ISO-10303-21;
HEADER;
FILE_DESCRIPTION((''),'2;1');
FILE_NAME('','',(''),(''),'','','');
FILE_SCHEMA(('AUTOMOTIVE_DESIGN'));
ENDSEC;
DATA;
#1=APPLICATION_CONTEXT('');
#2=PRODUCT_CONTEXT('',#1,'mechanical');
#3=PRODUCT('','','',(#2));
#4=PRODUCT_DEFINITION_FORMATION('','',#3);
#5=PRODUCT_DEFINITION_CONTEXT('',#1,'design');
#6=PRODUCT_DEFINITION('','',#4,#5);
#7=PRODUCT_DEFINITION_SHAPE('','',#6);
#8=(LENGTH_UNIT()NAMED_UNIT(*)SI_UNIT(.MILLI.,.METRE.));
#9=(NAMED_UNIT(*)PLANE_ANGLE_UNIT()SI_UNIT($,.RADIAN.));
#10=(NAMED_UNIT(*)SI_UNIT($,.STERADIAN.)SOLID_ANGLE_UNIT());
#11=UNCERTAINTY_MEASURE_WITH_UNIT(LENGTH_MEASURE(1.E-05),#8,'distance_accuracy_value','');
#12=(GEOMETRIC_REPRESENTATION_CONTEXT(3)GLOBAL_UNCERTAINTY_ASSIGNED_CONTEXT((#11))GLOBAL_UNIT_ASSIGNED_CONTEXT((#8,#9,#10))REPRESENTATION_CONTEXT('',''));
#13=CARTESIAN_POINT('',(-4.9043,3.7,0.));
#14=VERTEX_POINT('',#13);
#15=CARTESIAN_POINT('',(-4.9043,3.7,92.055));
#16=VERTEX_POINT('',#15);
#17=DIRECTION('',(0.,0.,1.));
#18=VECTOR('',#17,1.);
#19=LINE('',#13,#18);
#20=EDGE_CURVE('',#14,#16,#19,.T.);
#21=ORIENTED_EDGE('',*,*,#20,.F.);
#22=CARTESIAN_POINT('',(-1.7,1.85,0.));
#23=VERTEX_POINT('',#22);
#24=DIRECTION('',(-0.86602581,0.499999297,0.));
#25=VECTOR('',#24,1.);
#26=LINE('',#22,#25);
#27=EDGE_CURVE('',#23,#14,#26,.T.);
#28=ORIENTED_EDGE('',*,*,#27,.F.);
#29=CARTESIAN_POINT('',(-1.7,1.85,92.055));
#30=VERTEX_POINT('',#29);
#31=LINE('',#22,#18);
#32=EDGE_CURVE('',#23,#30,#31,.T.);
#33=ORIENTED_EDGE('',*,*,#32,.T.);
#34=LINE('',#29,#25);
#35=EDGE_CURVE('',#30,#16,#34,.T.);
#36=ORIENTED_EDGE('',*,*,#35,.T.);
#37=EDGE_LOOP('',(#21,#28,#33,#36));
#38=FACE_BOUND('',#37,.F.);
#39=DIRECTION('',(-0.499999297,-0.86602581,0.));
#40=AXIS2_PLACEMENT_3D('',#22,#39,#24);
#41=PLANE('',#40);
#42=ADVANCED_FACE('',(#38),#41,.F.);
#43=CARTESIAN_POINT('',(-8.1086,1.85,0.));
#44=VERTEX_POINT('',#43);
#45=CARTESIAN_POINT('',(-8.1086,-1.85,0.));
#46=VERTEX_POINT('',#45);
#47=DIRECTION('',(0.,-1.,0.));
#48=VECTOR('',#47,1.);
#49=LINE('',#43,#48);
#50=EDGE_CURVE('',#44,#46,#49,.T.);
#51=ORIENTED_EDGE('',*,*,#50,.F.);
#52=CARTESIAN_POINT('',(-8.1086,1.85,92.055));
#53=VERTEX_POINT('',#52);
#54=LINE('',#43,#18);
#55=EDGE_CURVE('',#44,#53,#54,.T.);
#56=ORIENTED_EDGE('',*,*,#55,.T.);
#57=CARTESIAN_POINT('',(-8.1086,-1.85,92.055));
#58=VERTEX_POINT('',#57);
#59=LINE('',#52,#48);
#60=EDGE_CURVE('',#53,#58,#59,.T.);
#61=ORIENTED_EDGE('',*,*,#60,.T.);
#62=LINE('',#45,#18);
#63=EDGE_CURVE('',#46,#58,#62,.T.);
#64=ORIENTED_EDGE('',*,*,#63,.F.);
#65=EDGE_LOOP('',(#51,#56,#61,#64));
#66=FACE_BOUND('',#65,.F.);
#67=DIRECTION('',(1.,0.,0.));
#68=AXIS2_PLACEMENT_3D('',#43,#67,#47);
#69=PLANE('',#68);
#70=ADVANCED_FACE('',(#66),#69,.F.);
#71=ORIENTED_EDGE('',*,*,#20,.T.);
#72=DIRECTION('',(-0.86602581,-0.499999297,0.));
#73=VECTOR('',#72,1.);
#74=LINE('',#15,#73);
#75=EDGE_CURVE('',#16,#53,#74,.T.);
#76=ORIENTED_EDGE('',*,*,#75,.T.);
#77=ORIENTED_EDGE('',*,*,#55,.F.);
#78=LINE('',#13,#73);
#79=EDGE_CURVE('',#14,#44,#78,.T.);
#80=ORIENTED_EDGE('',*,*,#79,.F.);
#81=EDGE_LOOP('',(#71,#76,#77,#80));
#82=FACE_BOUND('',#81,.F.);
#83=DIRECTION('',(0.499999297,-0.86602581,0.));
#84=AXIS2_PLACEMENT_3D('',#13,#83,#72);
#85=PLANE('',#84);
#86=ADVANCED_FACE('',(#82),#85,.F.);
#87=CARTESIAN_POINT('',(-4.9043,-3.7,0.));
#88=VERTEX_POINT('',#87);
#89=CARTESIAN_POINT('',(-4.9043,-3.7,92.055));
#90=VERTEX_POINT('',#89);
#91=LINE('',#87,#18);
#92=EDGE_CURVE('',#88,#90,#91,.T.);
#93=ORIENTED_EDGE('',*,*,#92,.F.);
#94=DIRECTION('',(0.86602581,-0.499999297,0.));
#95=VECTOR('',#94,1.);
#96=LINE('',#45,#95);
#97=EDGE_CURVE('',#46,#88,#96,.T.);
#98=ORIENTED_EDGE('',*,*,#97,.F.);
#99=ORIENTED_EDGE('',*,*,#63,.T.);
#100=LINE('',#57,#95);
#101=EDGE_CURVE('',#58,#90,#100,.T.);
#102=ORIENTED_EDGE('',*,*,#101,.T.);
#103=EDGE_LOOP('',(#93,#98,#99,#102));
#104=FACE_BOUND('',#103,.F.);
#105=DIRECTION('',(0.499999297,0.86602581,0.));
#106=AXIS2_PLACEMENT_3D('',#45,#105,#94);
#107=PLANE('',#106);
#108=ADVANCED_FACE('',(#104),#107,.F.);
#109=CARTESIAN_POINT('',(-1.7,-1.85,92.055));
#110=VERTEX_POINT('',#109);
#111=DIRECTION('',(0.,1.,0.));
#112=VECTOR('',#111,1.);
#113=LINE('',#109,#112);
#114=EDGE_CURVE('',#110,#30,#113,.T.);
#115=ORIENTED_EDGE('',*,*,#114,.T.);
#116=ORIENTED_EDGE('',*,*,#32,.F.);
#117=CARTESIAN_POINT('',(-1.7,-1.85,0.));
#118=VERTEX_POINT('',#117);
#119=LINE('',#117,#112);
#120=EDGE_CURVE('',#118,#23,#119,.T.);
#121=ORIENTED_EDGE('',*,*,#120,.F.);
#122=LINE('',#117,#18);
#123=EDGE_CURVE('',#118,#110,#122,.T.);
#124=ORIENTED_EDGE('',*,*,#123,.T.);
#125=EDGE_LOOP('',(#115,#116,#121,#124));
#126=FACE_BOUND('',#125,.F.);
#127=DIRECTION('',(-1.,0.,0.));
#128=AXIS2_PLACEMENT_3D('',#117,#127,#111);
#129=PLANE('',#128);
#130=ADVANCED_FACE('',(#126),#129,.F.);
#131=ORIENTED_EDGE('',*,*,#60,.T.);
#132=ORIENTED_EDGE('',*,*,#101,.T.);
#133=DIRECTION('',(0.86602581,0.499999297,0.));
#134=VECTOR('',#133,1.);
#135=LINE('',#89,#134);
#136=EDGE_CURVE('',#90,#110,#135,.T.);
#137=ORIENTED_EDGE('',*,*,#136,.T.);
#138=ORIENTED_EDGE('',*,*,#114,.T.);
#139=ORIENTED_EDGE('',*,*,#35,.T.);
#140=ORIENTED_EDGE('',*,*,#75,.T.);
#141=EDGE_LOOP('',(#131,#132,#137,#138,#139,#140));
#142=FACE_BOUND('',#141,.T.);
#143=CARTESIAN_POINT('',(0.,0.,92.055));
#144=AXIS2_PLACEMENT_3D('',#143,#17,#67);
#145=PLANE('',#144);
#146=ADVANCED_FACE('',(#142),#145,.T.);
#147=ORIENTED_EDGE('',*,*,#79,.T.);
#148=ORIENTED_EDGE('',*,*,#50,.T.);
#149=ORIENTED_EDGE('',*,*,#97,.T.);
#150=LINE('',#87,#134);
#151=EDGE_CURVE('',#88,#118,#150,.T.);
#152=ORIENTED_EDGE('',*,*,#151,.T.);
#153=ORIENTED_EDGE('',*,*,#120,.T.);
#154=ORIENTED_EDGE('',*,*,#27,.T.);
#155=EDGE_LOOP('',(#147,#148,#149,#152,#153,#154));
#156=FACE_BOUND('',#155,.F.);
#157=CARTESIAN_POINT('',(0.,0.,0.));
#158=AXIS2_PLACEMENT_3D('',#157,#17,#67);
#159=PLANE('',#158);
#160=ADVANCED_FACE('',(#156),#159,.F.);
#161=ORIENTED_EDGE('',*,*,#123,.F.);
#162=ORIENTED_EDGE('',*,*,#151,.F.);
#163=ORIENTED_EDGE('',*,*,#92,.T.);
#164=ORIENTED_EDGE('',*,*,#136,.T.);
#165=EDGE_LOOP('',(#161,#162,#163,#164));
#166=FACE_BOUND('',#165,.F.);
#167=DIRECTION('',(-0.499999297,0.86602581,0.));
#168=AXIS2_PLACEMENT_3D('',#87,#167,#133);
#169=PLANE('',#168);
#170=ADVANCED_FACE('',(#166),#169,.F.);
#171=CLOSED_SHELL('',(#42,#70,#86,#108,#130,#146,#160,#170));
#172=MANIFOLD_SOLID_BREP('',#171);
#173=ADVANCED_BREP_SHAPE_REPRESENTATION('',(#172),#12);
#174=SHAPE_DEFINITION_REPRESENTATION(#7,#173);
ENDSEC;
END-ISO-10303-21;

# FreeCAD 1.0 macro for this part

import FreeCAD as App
import Part
import Sketcher

V = App.Vector
Q = App.Units.Quantity


def add_polygon(sketch, points):
    """Adds a closed chain of lines whose ends are joined by coincident constraints."""
    first, n = sketch.GeometryCount, len(points)
    for a, b in zip(points, points[1:] + points[:1]):
        sketch.addGeometry(Part.LineSegment(App.Vector(*a, 0), App.Vector(*b, 0)), False)
    for i in range(n):
        sketch.addConstraint(Sketcher.Constraint("Coincident", first + i, 2, first + (i + 1) % n, 1))

doc = App.newDocument("Part")
body = doc.addObject("PartDesign::Body", "Body")

sketch1 = body.newObject("Sketcher::SketchObject", "Sketch")
sketch1.AttachmentSupport = (doc.getObject("XY_Plane"), [""])
sketch1.MapMode = "FlatFace"
add_polygon(sketch1, [(-8.1, 1.9), (-8.1, -1.9), (-4.9, -3.7), (-1.7, -1.9), (-1.7, 1.9), (-4.9, 3.7)])
sketch1.addConstraint([
    Sketcher.Constraint("Vertical", 0),
    Sketcher.Constraint("Vertical", 3),
    Sketcher.Constraint("Symmetric", 1, 2, 4, 2, -1),
    Sketcher.Constraint("Parallel", 1, 4),
    Sketcher.Constraint("Parallel", 2, 5),
    Sketcher.Constraint("Horizontal", 0, 2, 2, 2),
    Sketcher.Constraint("Horizontal", 3, 2, 5, 2),
    Sketcher.Constraint("Angle", 1, Q("-30 deg")),
    Sketcher.Constraint("DistanceY", 0, 2, 0, 1, 3.7),
    Sketcher.Constraint("Distance", 1, 3.7),
    Sketcher.Constraint("DistanceX", 2, 2, -1, 1, 1.7),
])
pad1 = body.newObject("PartDesign::Pad", "Pad")
pad1.Profile = sketch1
pad1.Length = 92.055

doc.recompute()
